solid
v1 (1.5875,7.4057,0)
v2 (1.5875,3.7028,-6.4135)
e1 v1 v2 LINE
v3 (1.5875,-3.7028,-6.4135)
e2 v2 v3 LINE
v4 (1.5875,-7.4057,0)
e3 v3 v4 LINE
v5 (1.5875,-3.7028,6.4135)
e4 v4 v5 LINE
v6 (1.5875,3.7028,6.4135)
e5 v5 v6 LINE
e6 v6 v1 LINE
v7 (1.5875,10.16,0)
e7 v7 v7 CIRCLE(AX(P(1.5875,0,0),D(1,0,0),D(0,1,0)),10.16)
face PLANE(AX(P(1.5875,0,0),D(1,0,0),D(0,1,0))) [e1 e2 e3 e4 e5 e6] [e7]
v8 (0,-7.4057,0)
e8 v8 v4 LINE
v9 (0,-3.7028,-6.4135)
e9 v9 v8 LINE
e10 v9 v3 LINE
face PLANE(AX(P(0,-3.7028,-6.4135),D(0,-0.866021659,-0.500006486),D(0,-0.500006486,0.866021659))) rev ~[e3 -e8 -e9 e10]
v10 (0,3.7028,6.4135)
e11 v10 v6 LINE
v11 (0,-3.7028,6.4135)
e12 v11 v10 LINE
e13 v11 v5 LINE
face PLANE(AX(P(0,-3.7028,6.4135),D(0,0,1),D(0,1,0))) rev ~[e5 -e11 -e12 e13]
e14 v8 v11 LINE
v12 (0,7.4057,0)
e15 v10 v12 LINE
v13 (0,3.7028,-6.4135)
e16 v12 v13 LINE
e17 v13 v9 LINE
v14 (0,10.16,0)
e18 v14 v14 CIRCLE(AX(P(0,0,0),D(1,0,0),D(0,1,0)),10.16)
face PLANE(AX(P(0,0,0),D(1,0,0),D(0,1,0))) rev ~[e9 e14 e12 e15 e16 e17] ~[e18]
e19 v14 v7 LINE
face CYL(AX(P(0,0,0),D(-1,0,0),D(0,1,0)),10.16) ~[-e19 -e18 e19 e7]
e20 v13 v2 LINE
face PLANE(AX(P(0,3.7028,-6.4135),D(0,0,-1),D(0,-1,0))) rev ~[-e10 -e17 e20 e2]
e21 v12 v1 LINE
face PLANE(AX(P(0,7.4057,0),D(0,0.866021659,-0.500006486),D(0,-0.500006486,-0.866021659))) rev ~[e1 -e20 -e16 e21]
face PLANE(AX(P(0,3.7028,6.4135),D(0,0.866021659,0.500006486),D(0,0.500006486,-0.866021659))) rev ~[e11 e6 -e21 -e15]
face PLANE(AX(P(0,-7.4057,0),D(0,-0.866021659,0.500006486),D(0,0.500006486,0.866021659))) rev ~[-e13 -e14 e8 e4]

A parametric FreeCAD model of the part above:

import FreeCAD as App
import Part
import Sketcher
from FreeCAD import Vector
Q = App.Units.Quantity


def add_polygon(sketch, points):
    """Adds a closed chain of lines whose ends are joined by coincident constraints."""
    first, n = sketch.GeometryCount, len(points)
    for a, b in zip(points, points[1:] + points[:1]):
        sketch.addGeometry(Part.LineSegment(App.Vector(*a, 0), App.Vector(*b, 0)), False)
    for i in range(n):
        sketch.addConstraint(Sketcher.Constraint("Coincident", first + i, 2, first + (i + 1) % n, 1))

doc = App.newDocument("Part")
params = doc.addObject("Spreadsheet::Sheet", "Params")
for row, (alias, value) in enumerate([
    ("sketch1_diameter", "0.8 in"),
    ("pad1_length", "0.0625 in"),
], start=1):
    params.set(f"A{row}", alias)
    params.set(f"B{row}", "=" + value)
    params.setAlias(f"B{row}", alias)

body = doc.addObject("PartDesign::Body", "Body")

sketch1 = body.newObject("Sketcher::SketchObject", "Sketch")
sketch1.AttachmentSupport = (doc.getObject("YZ_Plane"), [""])
sketch1.MapMode = "FlatFace"
sketch1.addGeometry(Part.Circle(Vector(0, 0, 0), Vector(0, 0, 1), 10), False)
add_polygon(sketch1, [(-7, 0), (-4, 6), (4, 6), (7, 0), (4, -6), (-4, -6)])
sketch1.addConstraint([
    Sketcher.Constraint("Horizontal", 2),
    Sketcher.Constraint("Horizontal", 5),
    Sketcher.Constraint("Coincident", 0, 3, -1, 1),
    Sketcher.Constraint("Symmetric", 1, 2, 4, 2, -1, 1),
    Sketcher.Constraint("Symmetric", 3, 2, 6, 2, -1, 1),
    Sketcher.Constraint("PointOnObject", 3, 2, -1),
    Sketcher.Constraint("Parallel", 3, 6),
    Sketcher.Constraint("Vertical", 2, 2, 4, 2),
    Sketcher.Constraint("Diameter", 0, Q("0.8 in")),
    Sketcher.Constraint("Angle", 1, Q("59.9996 deg")),
    Sketcher.Constraint("DistanceY", 4, 2, 2, 2, Q("0.505 in")),
    Sketcher.Constraint("DistanceX", 2, 1, 2, 2, Q("7.4056 mm")),
])
sketch1.setExpression("Constraints[14]", "Params.sketch1_diameter")
pad1 = body.newObject("PartDesign::Pad", "Pad")
pad1.Profile = sketch1
pad1.setExpression("Length", "Params.pad1_length")

doc.recompute()
